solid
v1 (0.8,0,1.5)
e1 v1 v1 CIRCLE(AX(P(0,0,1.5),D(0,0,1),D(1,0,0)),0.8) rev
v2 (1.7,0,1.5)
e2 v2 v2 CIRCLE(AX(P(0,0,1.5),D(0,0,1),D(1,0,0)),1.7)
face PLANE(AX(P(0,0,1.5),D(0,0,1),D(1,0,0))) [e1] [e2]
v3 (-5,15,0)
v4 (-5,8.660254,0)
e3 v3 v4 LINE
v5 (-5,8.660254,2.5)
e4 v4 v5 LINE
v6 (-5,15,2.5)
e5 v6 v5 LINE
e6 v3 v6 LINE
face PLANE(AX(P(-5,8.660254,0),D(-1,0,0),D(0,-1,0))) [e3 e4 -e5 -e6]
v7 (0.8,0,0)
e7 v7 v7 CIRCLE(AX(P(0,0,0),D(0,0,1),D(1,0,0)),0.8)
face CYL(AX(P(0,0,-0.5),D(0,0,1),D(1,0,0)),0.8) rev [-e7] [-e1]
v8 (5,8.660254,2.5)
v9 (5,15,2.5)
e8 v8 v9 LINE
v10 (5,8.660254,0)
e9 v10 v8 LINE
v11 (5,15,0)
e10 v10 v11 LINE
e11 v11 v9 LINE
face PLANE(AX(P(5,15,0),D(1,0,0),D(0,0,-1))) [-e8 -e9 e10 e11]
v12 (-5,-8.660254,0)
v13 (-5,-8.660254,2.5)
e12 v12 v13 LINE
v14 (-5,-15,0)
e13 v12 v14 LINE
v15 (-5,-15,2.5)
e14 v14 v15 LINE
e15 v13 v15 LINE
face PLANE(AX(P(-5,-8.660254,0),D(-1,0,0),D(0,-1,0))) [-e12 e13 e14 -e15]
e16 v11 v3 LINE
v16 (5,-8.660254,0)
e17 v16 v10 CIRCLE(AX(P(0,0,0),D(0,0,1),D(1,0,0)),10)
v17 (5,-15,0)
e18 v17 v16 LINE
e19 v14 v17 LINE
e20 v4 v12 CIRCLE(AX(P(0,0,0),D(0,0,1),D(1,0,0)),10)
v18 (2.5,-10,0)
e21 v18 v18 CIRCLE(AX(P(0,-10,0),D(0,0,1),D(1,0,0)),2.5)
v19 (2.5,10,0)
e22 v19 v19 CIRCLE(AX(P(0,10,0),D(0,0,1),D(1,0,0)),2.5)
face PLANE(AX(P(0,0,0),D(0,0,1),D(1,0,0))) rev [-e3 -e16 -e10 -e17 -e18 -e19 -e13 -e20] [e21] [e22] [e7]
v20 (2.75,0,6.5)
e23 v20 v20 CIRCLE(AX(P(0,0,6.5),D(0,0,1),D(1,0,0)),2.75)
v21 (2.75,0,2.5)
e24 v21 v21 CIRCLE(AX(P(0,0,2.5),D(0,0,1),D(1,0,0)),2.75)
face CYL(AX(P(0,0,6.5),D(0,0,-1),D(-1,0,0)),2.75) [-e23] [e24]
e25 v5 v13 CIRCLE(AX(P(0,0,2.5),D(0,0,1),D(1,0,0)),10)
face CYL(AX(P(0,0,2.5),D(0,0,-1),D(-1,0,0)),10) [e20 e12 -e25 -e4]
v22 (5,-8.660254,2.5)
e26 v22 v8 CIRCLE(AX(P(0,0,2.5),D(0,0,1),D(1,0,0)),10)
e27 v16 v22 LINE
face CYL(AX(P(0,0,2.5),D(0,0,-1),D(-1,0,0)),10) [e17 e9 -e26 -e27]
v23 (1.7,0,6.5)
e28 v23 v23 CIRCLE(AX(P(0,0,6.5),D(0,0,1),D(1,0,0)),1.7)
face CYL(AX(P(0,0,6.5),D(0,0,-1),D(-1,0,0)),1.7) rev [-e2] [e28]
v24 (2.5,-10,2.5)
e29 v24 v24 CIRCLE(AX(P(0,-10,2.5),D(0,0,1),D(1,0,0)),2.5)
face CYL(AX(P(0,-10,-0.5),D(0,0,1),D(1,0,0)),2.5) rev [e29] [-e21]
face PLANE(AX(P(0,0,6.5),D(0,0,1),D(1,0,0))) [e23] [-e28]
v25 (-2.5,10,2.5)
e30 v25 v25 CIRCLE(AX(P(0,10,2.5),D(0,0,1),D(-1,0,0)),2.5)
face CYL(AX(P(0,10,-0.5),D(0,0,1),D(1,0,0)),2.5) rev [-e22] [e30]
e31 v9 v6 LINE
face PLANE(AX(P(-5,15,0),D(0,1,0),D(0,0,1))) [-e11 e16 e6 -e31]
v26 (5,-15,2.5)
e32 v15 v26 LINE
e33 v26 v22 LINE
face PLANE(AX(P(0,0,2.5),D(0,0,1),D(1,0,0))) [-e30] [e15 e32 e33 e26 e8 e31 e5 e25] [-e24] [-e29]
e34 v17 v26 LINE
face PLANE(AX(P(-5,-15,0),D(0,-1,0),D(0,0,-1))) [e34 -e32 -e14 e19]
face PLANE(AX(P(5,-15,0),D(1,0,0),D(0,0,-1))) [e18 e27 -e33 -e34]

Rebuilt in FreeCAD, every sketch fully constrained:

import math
import FreeCAD as App
import Part
import Sketcher
from FreeCAD import Vector

doc = App.newDocument("Part")
body = doc.addObject("PartDesign::Body", "Body")

# Sketch on XY plane
sketch1 = body.newObject("Sketcher::SketchObject", "Sketch")
sketch1.AttachmentSupport = (doc.getObject("XY_Plane"), [""])
sketch1.MapMode = "FlatFace"
sketch1.addGeometry(Part.Circle(Vector(0, 0, 0), Vector(0, 0, 1), 10), False)
sketch1.addConstraint([
    Sketcher.Constraint("Coincident", 0, 3, -1, 1),
    Sketcher.Constraint("Diameter", 0, 20.0),
])
pad1 = body.newObject("PartDesign::Pad", "Pad")
pad1.Profile = sketch1
pad1.Length = 2.5

# Sketch on XY plane
sketch2 = body.newObject("Sketcher::SketchObject", "Sketch001")
sketch2.AttachmentSupport = (doc.getObject("XY_Plane"), [""])
sketch2.MapMode = "FlatFace"
sketch2.AttachmentOffset = App.Placement(Vector(0, 0, 2.5), App.Rotation())
sketch2.addGeometry(Part.Circle(Vector(0, 0, 0), Vector(0, 0, 1), 0.8), False)
sketch2.addConstraint([
    Sketcher.Constraint("Coincident", 0, 3, -1, 1),
    Sketcher.Constraint("Diameter", 0, 1.6),
])
pocket1 = body.newObject("PartDesign::Pocket", "Pocket")
pocket1.Profile = sketch2
pocket1.Length = 3

# Sketch on XY plane
sketch3 = body.newObject("Sketcher::SketchObject", "Sketch002")
sketch3.AttachmentSupport = (doc.getObject("XY_Plane"), [""])
sketch3.MapMode = "FlatFace"
sketch3.AttachmentOffset = App.Placement(Vector(0, 0, 2.5), App.Rotation())
sketch3.addGeometry([
    Part.Circle(Vector(0, 0, 0), Vector(0, 0, 1), 2.8),
    Part.Circle(Vector(0, 0, 0), Vector(0, 0, 1), 1.7),
], False)
sketch3.addConstraint([
    Sketcher.Constraint("Coincident", 0, 3, -1, 1),
    Sketcher.Constraint("Coincident", 1, 3, -1, 1),
    Sketcher.Constraint("Diameter", 0, 5.5),
    Sketcher.Constraint("Diameter", 1, 3.4),
])
pad2 = body.newObject("PartDesign::Pad", "Pad001")
pad2.Profile = sketch3
pad2.Length = 4

# Sketch on XY plane
sketch4 = body.newObject("Sketcher::SketchObject", "Sketch003")
sketch4.AttachmentSupport = (doc.getObject("XY_Plane"), [""])
sketch4.MapMode = "FlatFace"
sketch4.AttachmentOffset = App.Placement(Vector(0, 0, 1.5), App.Rotation())
sketch4.addGeometry(Part.Circle(Vector(0, 0, 0), Vector(0, 0, 1), 1.7), False)
sketch4.addConstraint([
    Sketcher.Constraint("Coincident", 0, 3, -1, 1),
    Sketcher.Constraint("Diameter", 0, 3.4),
])
pocket2 = body.newObject("PartDesign::Pocket", "Pocket001")
pocket2.Profile = sketch4
pocket2.Length = 1
pocket2.Reversed = True

# Sketch on XY plane
sketch5 = body.newObject("Sketcher::SketchObject", "Sketch004")
sketch5.AttachmentSupport = (doc.getObject("XY_Plane"), [""])
sketch5.MapMode = "FlatFace"
sketch5.addGeometry([
    Part.LineSegment(Vector(-5, -9, 0), Vector(-5, -15, 0)),  # 0
    Part.LineSegment(Vector(-5, -15, 0), Vector(5, -15, 0)),  # 1
    Part.LineSegment(Vector(5, -15, 0), Vector(5, -9, 0)),  # 2
    Part.ArcOfCircle(Part.Circle(Vector(0, 0, 0), Vector(0, 0, 1), 10), math.radians(-120), math.radians(-60)),  # 3
    Part.LineSegment(Vector(5, 9, 0), Vector(5, 15, 0)),  # 4
    Part.LineSegment(Vector(5, 15, 0), Vector(-5, 15, 0)),  # 5
    Part.LineSegment(Vector(-5, 15, 0), Vector(-5, 9, 0)),  # 6
    Part.ArcOfCircle(Part.Circle(Vector(0, 0, 0), Vector(0, 0, 1), 10), math.radians(60), math.radians(120)),  # 7
], False)
sketch5.addConstraint([
    Sketcher.Constraint("Coincident", 0, 2, 1, 1),
    Sketcher.Constraint("Coincident", 1, 2, 2, 1),
    Sketcher.Constraint("Coincident", 2, 2, 3, 2),
    Sketcher.Constraint("Coincident", 3, 1, 0, 1),
    Sketcher.Constraint("Coincident", 4, 2, 5, 1),
    Sketcher.Constraint("Coincident", 5, 2, 6, 1),
    Sketcher.Constraint("Coincident", 6, 2, 7, 2),
    Sketcher.Constraint("Coincident", 7, 1, 4, 1),
    Sketcher.Constraint("Vertical", 0),
    Sketcher.Constraint("Horizontal", 1),
    Sketcher.Constraint("Vertical", 2),
    Sketcher.Constraint("Vertical", 4),
    Sketcher.Constraint("Horizontal", 5),
    Sketcher.Constraint("Vertical", 6),
    Sketcher.Constraint("Coincident", 3, 3, -1, 1),
    Sketcher.Constraint("Coincident", 7, 3, -1, 1),
    Sketcher.Constraint("Equal", 3, 7),
    Sketcher.Constraint("Symmetric", 0, 2, 4, 2, -1, 1),
    Sketcher.Constraint("Horizontal", 2, 2, 3, 1),
    Sketcher.Constraint("Horizontal", 6, 2, 7, 1),
    Sketcher.Constraint("Radius", 3, 10.0),
    Sketcher.Constraint("DistanceX", 1, 1, 1, 2, 10.0),
    Sketcher.Constraint("DistanceY", 0, 2, -1, 1, 15.0),
])
pad3 = body.newObject("PartDesign::Pad", "Pad002")
pad3.Profile = sketch5
pad3.Length = 2.5

# Sketch on XY plane
sketch6 = body.newObject("Sketcher::SketchObject", "Sketch005")
sketch6.AttachmentSupport = (doc.getObject("XY_Plane"), [""])
sketch6.MapMode = "FlatFace"
sketch6.AttachmentOffset = App.Placement(Vector(0, 0, 2.5), App.Rotation())
sketch6.addGeometry([
    Part.Circle(Vector(0, -10, 0), Vector(0, 0, 1), 2.5),
    Part.Circle(Vector(0, 10, 0), Vector(0, 0, 1), 2.5),
], False)
sketch6.addConstraint([
    Sketcher.Constraint("Equal", 0, 1),
    Sketcher.Constraint("Symmetric", 0, 3, 1, 3, -1, 1),
    Sketcher.Constraint("PointOnObject", 0, 3, -2),
    Sketcher.Constraint("Diameter", 0, 5.0),
    Sketcher.Constraint("DistanceY", 0, 3, -1, 1, 10.0),
])
pocket3 = body.newObject("PartDesign::Pocket", "Pocket002")
pocket3.Profile = sketch6
pocket3.Length = 3

doc.recompute()
